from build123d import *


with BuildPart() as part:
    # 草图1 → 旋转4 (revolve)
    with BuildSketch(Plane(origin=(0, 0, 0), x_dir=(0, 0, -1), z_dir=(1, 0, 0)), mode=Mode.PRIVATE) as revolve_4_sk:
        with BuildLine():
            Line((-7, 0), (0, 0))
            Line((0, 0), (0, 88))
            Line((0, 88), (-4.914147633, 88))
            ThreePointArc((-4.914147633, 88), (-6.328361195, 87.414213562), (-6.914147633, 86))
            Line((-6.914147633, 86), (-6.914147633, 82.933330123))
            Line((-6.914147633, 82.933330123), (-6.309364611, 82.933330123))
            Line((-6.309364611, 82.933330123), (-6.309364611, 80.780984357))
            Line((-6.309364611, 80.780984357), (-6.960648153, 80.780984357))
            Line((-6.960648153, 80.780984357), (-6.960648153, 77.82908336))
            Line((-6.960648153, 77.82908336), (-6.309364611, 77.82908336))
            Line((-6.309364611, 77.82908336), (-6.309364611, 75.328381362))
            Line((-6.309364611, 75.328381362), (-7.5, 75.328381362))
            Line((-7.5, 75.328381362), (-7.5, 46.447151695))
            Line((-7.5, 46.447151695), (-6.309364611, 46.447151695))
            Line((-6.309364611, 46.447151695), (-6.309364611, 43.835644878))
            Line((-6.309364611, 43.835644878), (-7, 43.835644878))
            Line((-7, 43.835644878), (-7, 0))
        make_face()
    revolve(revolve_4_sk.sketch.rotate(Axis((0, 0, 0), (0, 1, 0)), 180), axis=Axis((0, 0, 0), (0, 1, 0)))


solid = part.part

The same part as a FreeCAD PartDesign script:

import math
import FreeCAD as App
import Part
import Sketcher

V = App.Vector
Q = App.Units.Quantity

doc = App.newDocument("Part")
params = doc.addObject("Spreadsheet::Sheet", "Params")
for row, (alias, value) in enumerate([
    ("sketch1_radius", "2 mm"),
    ("sketch1_width", "88 mm"),
    ("sketch1_height", "7 mm"),
    ("revolution_angle", "360 deg"),
], start=1):
    params.set(f"A{row}", alias)
    params.set(f"B{row}", "=" + value)
    params.setAlias(f"B{row}", alias)

body = doc.addObject("PartDesign::Body", "Body")

# Sketch on YZ plane
sketch1 = body.newObject("Sketcher::SketchObject", "Sketch")
sketch1.AttachmentSupport = (doc.getObject("YZ_Plane"), [""])
sketch1.MapMode = "FlatFace"
sketch1.addGeometry(Part.LineSegment(V(0, 7, 0), V(0, 0, 0)), False)
sketch1.addGeometry(Part.LineSegment(V(0, 0, 0), V(88, 0, 0)), False)
sketch1.addGeometry(Part.LineSegment(V(88, 0, 0), V(88, 4.9, 0)), False)
sketch1.addGeometry(Part.ArcOfCircle(Part.Circle(V(86, 4.9, 0), V(0, 0, 1), 2), math.radians(0), math.radians(90)), False)
sketch1.addGeometry(Part.LineSegment(V(86, 6.9, 0), V(82.9, 6.9, 0)), False)
sketch1.addGeometry(Part.LineSegment(V(82.9, 6.9, 0), V(82.9, 6.3, 0)), False)
sketch1.addGeometry(Part.LineSegment(V(82.9, 6.3, 0), V(80.8, 6.3, 0)), False)
sketch1.addGeometry(Part.LineSegment(V(80.8, 6.3, 0), V(80.8, 7, 0)), False)
sketch1.addGeometry(Part.LineSegment(V(80.8, 7, 0), V(77.8, 7, 0)), False)
sketch1.addGeometry(Part.LineSegment(V(77.8, 7, 0), V(77.8, 6.3, 0)), False)
sketch1.addGeometry(Part.LineSegment(V(77.8, 6.3, 0), V(75.3, 6.3, 0)), False)
sketch1.addGeometry(Part.LineSegment(V(75.3, 6.3, 0), V(75.3, 7.5, 0)), False)
sketch1.addGeometry(Part.LineSegment(V(75.3, 7.5, 0), V(46.4, 7.5, 0)), False)
sketch1.addGeometry(Part.LineSegment(V(46.4, 7.5, 0), V(46.4, 6.3, 0)), False)
sketch1.addGeometry(Part.LineSegment(V(46.4, 6.3, 0), V(43.8, 6.3, 0)), False)
sketch1.addGeometry(Part.LineSegment(V(43.8, 6.3, 0), V(43.8, 7, 0)), False)
sketch1.addGeometry(Part.LineSegment(V(43.8, 7, 0), V(0, 7, 0)), False)
sketch1.addConstraint(Sketcher.Constraint("Coincident", 0, 2, 1, 1))
sketch1.addConstraint(Sketcher.Constraint("Coincident", 1, 2, 2, 1))
sketch1.addConstraint(Sketcher.Constraint("Tangent", 2, 2, 3, 1))
sketch1.addConstraint(Sketcher.Constraint("Tangent", 3, 2, 4, 1))
sketch1.addConstraint(Sketcher.Constraint("Coincident", 4, 2, 5, 1))
sketch1.addConstraint(Sketcher.Constraint("Coincident", 5, 2, 6, 1))
sketch1.addConstraint(Sketcher.Constraint("Coincident", 6, 2, 7, 1))
sketch1.addConstraint(Sketcher.Constraint("Coincident", 7, 2, 8, 1))
sketch1.addConstraint(Sketcher.Constraint("Coincident", 8, 2, 9, 1))
sketch1.addConstraint(Sketcher.Constraint("Coincident", 9, 2, 10, 1))
sketch1.addConstraint(Sketcher.Constraint("Coincident", 10, 2, 11, 1))
sketch1.addConstraint(Sketcher.Constraint("Coincident", 11, 2, 12, 1))
sketch1.addConstraint(Sketcher.Constraint("Coincident", 12, 2, 13, 1))
sketch1.addConstraint(Sketcher.Constraint("Coincident", 13, 2, 14, 1))
sketch1.addConstraint(Sketcher.Constraint("Coincident", 14, 2, 15, 1))
sketch1.addConstraint(Sketcher.Constraint("Coincident", 15, 2, 16, 1))
sketch1.addConstraint(Sketcher.Constraint("Coincident", 16, 2, 0, 1))
sketch1.addConstraint(Sketcher.Constraint("Vertical", 0))
sketch1.addConstraint(Sketcher.Constraint("Horizontal", 1))
sketch1.addConstraint(Sketcher.Constraint("Vertical", 2))
sketch1.addConstraint(Sketcher.Constraint("Horizontal", 4))
sketch1.addConstraint(Sketcher.Constraint("Vertical", 5))
sketch1.addConstraint(Sketcher.Constraint("Horizontal", 6))
sketch1.addConstraint(Sketcher.Constraint("Vertical", 7))
sketch1.addConstraint(Sketcher.Constraint("Horizontal", 8))
sketch1.addConstraint(Sketcher.Constraint("Vertical", 9))
sketch1.addConstraint(Sketcher.Constraint("Horizontal", 10))
sketch1.addConstraint(Sketcher.Constraint("Vertical", 11))
sketch1.addConstraint(Sketcher.Constraint("Horizontal", 12))
sketch1.addConstraint(Sketcher.Constraint("Vertical", 13))
sketch1.addConstraint(Sketcher.Constraint("Horizontal", 14))
sketch1.addConstraint(Sketcher.Constraint("Vertical", 15))
sketch1.addConstraint(Sketcher.Constraint("Horizontal", 16))
sketch1.addConstraint(Sketcher.Constraint("Coincident", 0, 2, -1, 1))
sketch1.addConstraint(Sketcher.Constraint("Horizontal", 6, 2, 9, 2))
sketch1.addConstraint(Sketcher.Constraint("Horizontal", 10, 2, 13, 2))
sketch1.addConstraint(Sketcher.Constraint("Radius", 3, Q("2 mm")))
sketch1.addConstraint(Sketcher.Constraint("DistanceX", 1, 1, 1, 2, Q("88 mm")))
sketch1.addConstraint(Sketcher.Constraint("DistanceY", 0, 2, 0, 1, Q("7 mm")))
sketch1.addConstraint(Sketcher.Constraint("DistanceY", -1, 1, 11, 2, Q("7.5 mm")))
sketch1.addConstraint(Sketcher.Constraint("DistanceX", 8, 2, 8, 1, Q("2.951901 mm")))
sketch1.addConstraint(Sketcher.Constraint("DistanceX", 10, 2, 10, 1, Q("2.500702 mm")))
sketch1.addConstraint(Sketcher.Constraint("DistanceX", 4, 2, 4, 1, Q("3.06667 mm")))
sketch1.addConstraint(Sketcher.Constraint("DistanceX", 12, 2, 12, 1, Q("28.88123 mm")))
sketch1.addConstraint(Sketcher.Constraint("DistanceY", 4, 2, 7, 2, Q("0.046501 mm")))
sketch1.addConstraint(Sketcher.Constraint("DistanceX", 6, 2, 6, 1, Q("2.152346 mm")))
sketch1.addConstraint(Sketcher.Constraint("DistanceX", 14, 2, 14, 1, Q("2.611507 mm")))
sketch1.addConstraint(Sketcher.Constraint("DistanceY", 2, 1, 2, 2, Q("4.914148 mm")))
sketch1.addConstraint(Sketcher.Constraint("DistanceY", 5, 2, 5, 1, Q("0.604783 mm")))
sketch1.setExpression("Constraints[36]", "Params.sketch1_radius")
sketch1.setExpression("Constraints[37]", "Params.sketch1_width")
sketch1.setExpression("Constraints[38]", "Params.sketch1_height")
revolution = body.newObject("PartDesign::Revolution", "Revolution")
revolution.Profile = sketch1
revolution.ReferenceAxis = (sketch1, ["H_Axis"])
revolution.setExpression("Angle", "Params.revolution_angle")

doc.recompute()
